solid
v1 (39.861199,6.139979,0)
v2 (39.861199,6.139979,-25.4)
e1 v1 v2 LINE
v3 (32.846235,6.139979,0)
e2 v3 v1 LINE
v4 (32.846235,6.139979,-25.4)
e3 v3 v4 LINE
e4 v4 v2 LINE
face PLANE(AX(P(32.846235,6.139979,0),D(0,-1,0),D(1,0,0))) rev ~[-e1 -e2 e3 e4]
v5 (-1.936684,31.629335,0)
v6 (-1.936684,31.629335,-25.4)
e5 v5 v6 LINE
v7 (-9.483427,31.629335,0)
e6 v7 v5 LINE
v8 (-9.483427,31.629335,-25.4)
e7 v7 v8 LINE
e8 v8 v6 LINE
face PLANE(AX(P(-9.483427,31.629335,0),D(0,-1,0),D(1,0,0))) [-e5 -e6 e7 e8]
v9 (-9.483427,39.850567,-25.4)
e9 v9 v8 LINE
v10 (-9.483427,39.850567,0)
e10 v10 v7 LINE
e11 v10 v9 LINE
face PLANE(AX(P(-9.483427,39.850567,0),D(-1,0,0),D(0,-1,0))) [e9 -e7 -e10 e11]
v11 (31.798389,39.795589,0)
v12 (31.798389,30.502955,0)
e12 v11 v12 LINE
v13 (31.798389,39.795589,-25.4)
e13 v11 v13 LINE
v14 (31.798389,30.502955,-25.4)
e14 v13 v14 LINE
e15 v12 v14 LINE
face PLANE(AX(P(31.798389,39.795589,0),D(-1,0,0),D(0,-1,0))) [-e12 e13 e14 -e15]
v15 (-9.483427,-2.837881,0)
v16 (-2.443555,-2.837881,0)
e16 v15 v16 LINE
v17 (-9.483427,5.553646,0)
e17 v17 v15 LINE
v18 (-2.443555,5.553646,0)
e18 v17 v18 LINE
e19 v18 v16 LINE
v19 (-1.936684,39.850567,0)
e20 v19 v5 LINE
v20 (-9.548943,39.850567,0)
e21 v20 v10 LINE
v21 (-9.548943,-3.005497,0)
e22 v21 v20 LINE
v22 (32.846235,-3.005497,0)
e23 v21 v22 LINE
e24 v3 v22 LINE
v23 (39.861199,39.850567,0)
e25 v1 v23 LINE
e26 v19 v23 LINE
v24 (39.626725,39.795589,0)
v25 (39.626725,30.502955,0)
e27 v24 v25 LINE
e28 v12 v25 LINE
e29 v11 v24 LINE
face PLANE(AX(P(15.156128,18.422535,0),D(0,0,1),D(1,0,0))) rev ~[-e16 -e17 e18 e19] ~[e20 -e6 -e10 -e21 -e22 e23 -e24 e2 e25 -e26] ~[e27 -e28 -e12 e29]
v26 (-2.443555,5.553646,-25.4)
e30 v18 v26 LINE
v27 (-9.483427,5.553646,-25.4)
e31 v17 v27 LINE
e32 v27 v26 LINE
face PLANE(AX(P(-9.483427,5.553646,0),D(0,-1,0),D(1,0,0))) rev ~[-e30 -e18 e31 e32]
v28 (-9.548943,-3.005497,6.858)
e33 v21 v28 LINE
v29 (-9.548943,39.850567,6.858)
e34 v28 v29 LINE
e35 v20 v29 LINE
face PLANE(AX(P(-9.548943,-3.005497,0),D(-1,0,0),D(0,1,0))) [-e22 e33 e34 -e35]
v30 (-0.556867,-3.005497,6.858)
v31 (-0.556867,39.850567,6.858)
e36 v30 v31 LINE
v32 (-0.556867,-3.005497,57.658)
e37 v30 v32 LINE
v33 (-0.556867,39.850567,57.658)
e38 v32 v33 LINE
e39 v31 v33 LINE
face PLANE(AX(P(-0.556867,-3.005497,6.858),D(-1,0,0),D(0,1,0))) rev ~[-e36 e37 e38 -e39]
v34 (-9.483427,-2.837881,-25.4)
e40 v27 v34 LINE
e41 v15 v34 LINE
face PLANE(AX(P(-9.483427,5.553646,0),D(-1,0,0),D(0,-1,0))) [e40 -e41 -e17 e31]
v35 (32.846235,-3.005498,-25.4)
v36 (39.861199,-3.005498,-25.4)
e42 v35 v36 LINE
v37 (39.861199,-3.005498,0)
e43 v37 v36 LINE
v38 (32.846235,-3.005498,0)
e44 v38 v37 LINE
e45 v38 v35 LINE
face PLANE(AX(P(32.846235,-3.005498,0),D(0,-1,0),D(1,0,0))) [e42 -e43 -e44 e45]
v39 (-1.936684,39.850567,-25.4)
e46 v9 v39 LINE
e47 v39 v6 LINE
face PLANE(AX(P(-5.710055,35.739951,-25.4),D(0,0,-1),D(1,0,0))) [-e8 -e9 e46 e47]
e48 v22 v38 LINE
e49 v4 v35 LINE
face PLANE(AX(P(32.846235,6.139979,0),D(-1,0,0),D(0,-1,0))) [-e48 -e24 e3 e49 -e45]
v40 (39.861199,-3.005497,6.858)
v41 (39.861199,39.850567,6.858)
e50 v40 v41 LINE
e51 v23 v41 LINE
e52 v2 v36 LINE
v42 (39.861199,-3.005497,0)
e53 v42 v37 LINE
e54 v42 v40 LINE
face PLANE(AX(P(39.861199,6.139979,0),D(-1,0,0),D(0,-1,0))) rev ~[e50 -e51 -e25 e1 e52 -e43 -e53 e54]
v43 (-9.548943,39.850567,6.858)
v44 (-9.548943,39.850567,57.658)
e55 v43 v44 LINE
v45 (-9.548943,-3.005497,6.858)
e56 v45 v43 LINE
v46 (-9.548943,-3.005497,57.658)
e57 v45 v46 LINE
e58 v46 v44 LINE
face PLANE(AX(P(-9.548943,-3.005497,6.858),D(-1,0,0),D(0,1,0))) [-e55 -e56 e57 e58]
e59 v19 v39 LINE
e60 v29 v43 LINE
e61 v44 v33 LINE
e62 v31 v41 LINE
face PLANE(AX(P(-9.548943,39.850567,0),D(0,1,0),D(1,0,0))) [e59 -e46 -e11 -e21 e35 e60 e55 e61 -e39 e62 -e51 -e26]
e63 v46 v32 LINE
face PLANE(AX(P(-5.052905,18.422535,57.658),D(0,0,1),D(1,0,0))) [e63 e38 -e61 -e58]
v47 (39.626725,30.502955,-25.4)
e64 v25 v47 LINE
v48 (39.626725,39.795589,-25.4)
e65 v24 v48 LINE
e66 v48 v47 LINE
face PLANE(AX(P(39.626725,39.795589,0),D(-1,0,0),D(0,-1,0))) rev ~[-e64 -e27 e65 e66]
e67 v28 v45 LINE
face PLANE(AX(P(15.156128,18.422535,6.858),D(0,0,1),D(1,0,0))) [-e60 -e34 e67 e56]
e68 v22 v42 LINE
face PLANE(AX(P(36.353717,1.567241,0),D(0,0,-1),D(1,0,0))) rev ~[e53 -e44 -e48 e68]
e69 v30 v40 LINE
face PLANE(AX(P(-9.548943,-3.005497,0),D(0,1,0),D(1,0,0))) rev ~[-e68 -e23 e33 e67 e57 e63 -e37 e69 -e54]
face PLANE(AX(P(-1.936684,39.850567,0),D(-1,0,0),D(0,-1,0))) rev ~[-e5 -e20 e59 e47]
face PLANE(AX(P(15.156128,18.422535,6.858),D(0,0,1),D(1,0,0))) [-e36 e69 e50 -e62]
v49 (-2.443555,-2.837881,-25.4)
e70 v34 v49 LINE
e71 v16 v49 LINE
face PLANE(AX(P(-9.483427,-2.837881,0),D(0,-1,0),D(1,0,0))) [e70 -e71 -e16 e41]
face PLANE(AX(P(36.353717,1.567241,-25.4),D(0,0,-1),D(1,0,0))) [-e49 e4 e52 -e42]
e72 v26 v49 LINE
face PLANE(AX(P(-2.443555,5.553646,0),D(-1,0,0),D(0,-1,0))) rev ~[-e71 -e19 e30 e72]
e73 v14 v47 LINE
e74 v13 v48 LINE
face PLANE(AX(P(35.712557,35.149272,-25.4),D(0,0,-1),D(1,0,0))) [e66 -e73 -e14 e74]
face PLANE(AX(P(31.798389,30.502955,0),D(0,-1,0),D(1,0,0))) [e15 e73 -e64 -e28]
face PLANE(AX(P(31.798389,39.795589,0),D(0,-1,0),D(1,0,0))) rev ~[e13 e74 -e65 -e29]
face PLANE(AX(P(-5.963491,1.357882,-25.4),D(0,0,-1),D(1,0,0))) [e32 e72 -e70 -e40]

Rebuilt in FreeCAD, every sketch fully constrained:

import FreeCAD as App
import Part
import Sketcher
Q = App.Units.Quantity


def add_polygon(sketch, points):
    """Adds a closed chain of lines whose ends are joined by coincident constraints."""
    first, n = sketch.GeometryCount, len(points)
    for a, b in zip(points, points[1:] + points[:1]):
        sketch.addGeometry(Part.LineSegment(App.Vector(*a, 0), App.Vector(*b, 0)), False)
    for i in range(n):
        sketch.addConstraint(Sketcher.Constraint("Coincident", first + i, 2, first + (i + 1) % n, 1))

doc = App.newDocument("Part")
body = doc.addObject("PartDesign::Body", "Body")

# Sketch on XY plane
sketch1 = body.newObject("Sketcher::SketchObject", "Sketch")
sketch1.AttachmentSupport = (doc.getObject("XY_Plane"), [""])
sketch1.MapMode = "FlatFace"
add_polygon(sketch1, [(-9.548943, 39.850567), (-9.548943, -3.005497), (39.861199, -3.005497), (39.861199, 39.850567)])  # lines 0-3
sketch1.addConstraint([
    Sketcher.Constraint("Vertical", 0),
    Sketcher.Constraint("Horizontal", 1),
    Sketcher.Constraint("Vertical", 2),
    Sketcher.Constraint("Horizontal", 3),
    Sketcher.Constraint("DistanceX", -1, 1, 1, 2, Q("39.861199 mm")),
    Sketcher.Constraint("DistanceX", 1, 1, 1, 2, Q("49.410142 mm")),
    Sketcher.Constraint("DistanceY", 0, 2, 0, 1, Q("42.856064 mm")),
    Sketcher.Constraint("DistanceY", 0, 2, -1, 1, Q("3.005497 mm")),
])
pad1 = body.newObject("PartDesign::Pad", "Pad")
pad1.Profile = sketch1
pad1.Length = Q("0.27 in")

# Sketch on XY plane
sketch2 = body.newObject("Sketcher::SketchObject", "Sketch001")
sketch2.AttachmentSupport = (doc.getObject("XY_Plane"), [""])
sketch2.MapMode = "FlatFace"
add_polygon(sketch2, [(31.798389, 30.502955), (31.798389, 39.795589), (39.626725, 39.795589), (39.626725, 30.502955)])  # lines 0-3
add_polygon(sketch2, [(-9.483427, 31.629335), (-9.483427, 39.850567), (-1.936684, 39.850567), (-1.936684, 31.629335)])  # lines 4-7
add_polygon(sketch2, [(-9.483427, -2.837881), (-9.483427, 5.553646), (-2.443555, 5.553646), (-2.443555, -2.837881)])  # lines 8-11
add_polygon(sketch2, [(32.846235, -3.005498), (32.846235, 6.139979), (39.861199, 6.139979), (39.861199, -3.005498)])  # lines 12-15
sketch2.addConstraint([
    Sketcher.Constraint("Vertical", 0),
    Sketcher.Constraint("Horizontal", 1),
    Sketcher.Constraint("Vertical", 2),
    Sketcher.Constraint("Horizontal", 3),
    Sketcher.Constraint("Vertical", 4),
    Sketcher.Constraint("Horizontal", 5),
    Sketcher.Constraint("Vertical", 6),
    Sketcher.Constraint("Horizontal", 7),
    Sketcher.Constraint("Vertical", 8),
    Sketcher.Constraint("Horizontal", 9),
    Sketcher.Constraint("Vertical", 10),
    Sketcher.Constraint("Horizontal", 11),
    Sketcher.Constraint("Vertical", 12),
    Sketcher.Constraint("Horizontal", 13),
    Sketcher.Constraint("Vertical", 14),
    Sketcher.Constraint("Horizontal", 15),
    Sketcher.Constraint("Vertical", 7, 2, 8, 2),
    Sketcher.Constraint("DistanceY", 4, 1, 4, 2, Q("8.221232 mm")),
    Sketcher.Constraint("DistanceX", -1, 1, 13, 2, Q("39.861199 mm")),
    Sketcher.Constraint("DistanceX", 1, 1, 1, 2, Q("7.828336 mm")),
    Sketcher.Constraint("DistanceX", 5, 1, 5, 2, Q("7.546743 mm")),
    Sketcher.Constraint("DistanceX", 9, 1, 9, 2, Q("7.039872 mm")),
    Sketcher.Constraint("DistanceX", 13, 1, 13, 2, Q("7.014964 mm")),
    Sketcher.Constraint("DistanceY", 0, 1, 0, 2, Q("9.292633 mm")),
    Sketcher.Constraint("DistanceY", 8, 1, 8, 2, Q("8.391527 mm")),
    Sketcher.Constraint("DistanceY", 12, 1, 12, 2, Q("9.145477 mm")),
    Sketcher.Constraint("DistanceX", -1, 1, 0, 2, Q("31.798389 mm")),
    Sketcher.Constraint("DistanceY", -1, 1, 0, 2, Q("39.795589 mm")),
    Sketcher.Constraint("DistanceY", 10, 2, -1, 1, Q("2.837881 mm")),
    Sketcher.Constraint("DistanceY", -1, 1, 12, 2, Q("6.139979 mm")),
    Sketcher.Constraint("DistanceY", 0, 2, 4, 2, Q("0.054978 mm")),
    Sketcher.Constraint("DistanceX", 4, 2, 1, 2, Q("49.110152 mm")),
])
pad2 = body.newObject("PartDesign::Pad", "Pad001")
pad2.Profile = sketch2
pad2.Length = Q("1 in")
pad2.Reversed = True

# Sketch on XY plane
sketch3 = body.newObject("Sketcher::SketchObject", "Sketch002")
sketch3.AttachmentSupport = (doc.getObject("XY_Plane"), [""])
sketch3.MapMode = "FlatFace"
sketch3.AttachmentOffset = App.Placement(App.Vector(0, 0, 0.27 * 25.4), App.Rotation())
add_polygon(sketch3, [(-9.548943, 39.850567), (-9.548943, -3.005497), (-0.556867, -3.005497), (-0.556867, 39.850567)])  # lines 0-3
sketch3.addConstraint([
    Sketcher.Constraint("Vertical", 0),
    Sketcher.Constraint("Horizontal", 1),
    Sketcher.Constraint("Vertical", 2),
    Sketcher.Constraint("Horizontal", 3),
    Sketcher.Constraint("DistanceX", 1, 1, 1, 2, Q("8.992075 mm")),
    Sketcher.Constraint("DistanceY", 0, 2, 0, 1, Q("42.856064 mm")),
    Sketcher.Constraint("DistanceX", 0, 2, -1, 1, Q("9.548943 mm")),
    Sketcher.Constraint("DistanceY", 0, 2, -1, 1, Q("3.005497 mm")),
])
pad3 = body.newObject("PartDesign::Pad", "Pad002")
pad3.Profile = sketch3
pad3.Length = Q("2 in")

doc.recompute()
